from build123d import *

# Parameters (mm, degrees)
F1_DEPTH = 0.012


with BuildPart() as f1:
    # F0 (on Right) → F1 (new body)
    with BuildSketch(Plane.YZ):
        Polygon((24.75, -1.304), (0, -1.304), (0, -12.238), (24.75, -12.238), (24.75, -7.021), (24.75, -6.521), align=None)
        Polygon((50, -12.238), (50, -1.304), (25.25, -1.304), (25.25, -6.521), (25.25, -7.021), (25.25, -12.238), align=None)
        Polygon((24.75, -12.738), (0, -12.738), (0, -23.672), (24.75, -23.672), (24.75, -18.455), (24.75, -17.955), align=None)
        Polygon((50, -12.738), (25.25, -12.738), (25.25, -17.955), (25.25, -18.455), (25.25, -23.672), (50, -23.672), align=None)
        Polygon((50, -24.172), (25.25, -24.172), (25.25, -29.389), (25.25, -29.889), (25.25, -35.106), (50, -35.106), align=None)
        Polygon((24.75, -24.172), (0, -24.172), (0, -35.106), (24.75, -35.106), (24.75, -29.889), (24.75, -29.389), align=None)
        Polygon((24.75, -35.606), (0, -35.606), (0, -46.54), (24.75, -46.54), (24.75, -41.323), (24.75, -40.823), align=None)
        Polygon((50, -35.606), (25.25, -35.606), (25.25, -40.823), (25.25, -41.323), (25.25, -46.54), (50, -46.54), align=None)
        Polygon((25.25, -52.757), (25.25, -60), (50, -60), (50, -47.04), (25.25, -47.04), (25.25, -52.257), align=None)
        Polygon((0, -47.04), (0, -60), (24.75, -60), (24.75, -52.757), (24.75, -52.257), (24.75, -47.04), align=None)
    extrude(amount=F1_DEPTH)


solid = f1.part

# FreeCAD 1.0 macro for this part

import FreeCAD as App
import Part
import Sketcher
from FreeCAD import Vector
Q = App.Units.Quantity


def add_polygon(sketch, points):
    """Adds a closed chain of lines whose ends are joined by coincident constraints."""
    first, n = sketch.GeometryCount, len(points)
    for a, b in zip(points, points[1:] + points[:1]):
        sketch.addGeometry(Part.LineSegment(App.Vector(*a, 0), App.Vector(*b, 0)), False)
    for i in range(n):
        sketch.addConstraint(Sketcher.Constraint("Coincident", first + i, 2, first + (i + 1) % n, 1))

doc = App.newDocument("Part")
body = doc.addObject("PartDesign::Body", "Body")
body.AllowCompound = True

sketch1 = body.newObject("Sketcher::SketchObject", "Sketch")
sketch1.AttachmentSupport = (doc.getObject("YZ_Plane"), [""])
sketch1.MapMode = "FlatFace"
add_polygon(sketch1, [(25, -1), (0, -1), (0, -12), (25, -12)])
add_polygon(sketch1, [(50, -12), (50, -1), (25, -1), (25, -12)])
add_polygon(sketch1, [(25, -13), (0, -13), (0, -24), (25, -24)])
add_polygon(sketch1, [(50, -13), (25, -13), (25, -24), (50, -24)])
add_polygon(sketch1, [(50, -24), (25, -24), (25, -35), (50, -35)])
add_polygon(sketch1, [(25, -24), (0, -24), (0, -35), (25, -35)])
add_polygon(sketch1, [(25, -36), (0, -36), (0, -47), (25, -47)])
add_polygon(sketch1, [(50, -36), (25, -36), (25, -47), (50, -47)])
add_polygon(sketch1, [(25, -60), (50, -60), (50, -47), (25, -47)])
add_polygon(sketch1, [(0, -47), (0, -60), (25, -60), (25, -47)])
sketch1.addConstraint(Sketcher.Constraint("Horizontal", 0))
sketch1.addConstraint(Sketcher.Constraint("Vertical", 1))
sketch1.addConstraint(Sketcher.Constraint("Horizontal", 2))
sketch1.addConstraint(Sketcher.Constraint("Vertical", 3))
sketch1.addConstraint(Sketcher.Constraint("Vertical", 4))
sketch1.addConstraint(Sketcher.Constraint("Horizontal", 5))
sketch1.addConstraint(Sketcher.Constraint("Vertical", 6))
sketch1.addConstraint(Sketcher.Constraint("Horizontal", 7))
sketch1.addConstraint(Sketcher.Constraint("Horizontal", 8))
sketch1.addConstraint(Sketcher.Constraint("Vertical", 9))
sketch1.addConstraint(Sketcher.Constraint("Horizontal", 10))
sketch1.addConstraint(Sketcher.Constraint("Vertical", 11))
sketch1.addConstraint(Sketcher.Constraint("Horizontal", 12))
sketch1.addConstraint(Sketcher.Constraint("Vertical", 13))
sketch1.addConstraint(Sketcher.Constraint("Horizontal", 14))
sketch1.addConstraint(Sketcher.Constraint("Vertical", 15))
sketch1.addConstraint(Sketcher.Constraint("Horizontal", 16))
sketch1.addConstraint(Sketcher.Constraint("Vertical", 17))
sketch1.addConstraint(Sketcher.Constraint("Horizontal", 18))
sketch1.addConstraint(Sketcher.Constraint("Vertical", 19))
sketch1.addConstraint(Sketcher.Constraint("Horizontal", 20))
sketch1.addConstraint(Sketcher.Constraint("Vertical", 21))
sketch1.addConstraint(Sketcher.Constraint("Horizontal", 22))
sketch1.addConstraint(Sketcher.Constraint("Vertical", 23))
sketch1.addConstraint(Sketcher.Constraint("Horizontal", 24))
sketch1.addConstraint(Sketcher.Constraint("Vertical", 25))
sketch1.addConstraint(Sketcher.Constraint("Horizontal", 26))
sketch1.addConstraint(Sketcher.Constraint("Vertical", 27))
sketch1.addConstraint(Sketcher.Constraint("Horizontal", 28))
sketch1.addConstraint(Sketcher.Constraint("Vertical", 29))
sketch1.addConstraint(Sketcher.Constraint("Horizontal", 30))
sketch1.addConstraint(Sketcher.Constraint("Vertical", 31))
sketch1.addConstraint(Sketcher.Constraint("Horizontal", 32))
sketch1.addConstraint(Sketcher.Constraint("Vertical", 33))
sketch1.addConstraint(Sketcher.Constraint("Horizontal", 34))
sketch1.addConstraint(Sketcher.Constraint("Vertical", 35))
sketch1.addConstraint(Sketcher.Constraint("Vertical", 36))
sketch1.addConstraint(Sketcher.Constraint("Horizontal", 37))
sketch1.addConstraint(Sketcher.Constraint("Vertical", 38))
sketch1.addConstraint(Sketcher.Constraint("Horizontal", 39))
sketch1.addConstraint(Sketcher.Constraint("PointOnObject", 0, 2, -2))
sketch1.addConstraint(Sketcher.Constraint("PointOnObject", 8, 2, -2))
sketch1.addConstraint(Sketcher.Constraint("PointOnObject", 20, 2, -2))
sketch1.addConstraint(Sketcher.Constraint("PointOnObject", 24, 2, -2))
sketch1.addConstraint(Sketcher.Constraint("PointOnObject", 36, 2, -2))
sketch1.addConstraint(Sketcher.Constraint("Horizontal", 3, 2, 4, 2))
sketch1.addConstraint(Sketcher.Constraint("Horizontal", 2, 2, 6, 2))
sketch1.addConstraint(Sketcher.Constraint("Horizontal", 11, 2, 12, 2))
sketch1.addConstraint(Sketcher.Constraint("Horizontal", 10, 2, 13, 2))
sketch1.addConstraint(Sketcher.Constraint("Horizontal", 19, 2, 20, 2))
sketch1.addConstraint(Sketcher.Constraint("Horizontal", 18, 2, 21, 2))
sketch1.addConstraint(Sketcher.Constraint("Horizontal", 27, 2, 28, 2))
sketch1.addConstraint(Sketcher.Constraint("Horizontal", 26, 2, 29, 2))
sketch1.addConstraint(Sketcher.Constraint("Horizontal", 35, 2, 36, 2))
sketch1.addConstraint(Sketcher.Constraint("Horizontal", 34, 2, 38, 2))
sketch1.addConstraint(Sketcher.Constraint("Vertical", 3, 2, 10, 2))
sketch1.addConstraint(Sketcher.Constraint("Vertical", 6, 2, 12, 2))
sketch1.addConstraint(Sketcher.Constraint("Vertical", 7, 2, 14, 2))
sketch1.addConstraint(Sketcher.Constraint("Vertical", 13, 2, 16, 2))
sketch1.addConstraint(Sketcher.Constraint("Vertical", 15, 2, 18, 2))
sketch1.addConstraint(Sketcher.Constraint("Vertical", 11, 2, 22, 2))
sketch1.addConstraint(Sketcher.Constraint("Vertical", 23, 2, 26, 2))
sketch1.addConstraint(Sketcher.Constraint("Vertical", 17, 2, 28, 2))
sketch1.addConstraint(Sketcher.Constraint("Vertical", 19, 2, 30, 2))
sketch1.addConstraint(Sketcher.Constraint("Vertical", 31, 2, 32, 2))
sketch1.addConstraint(Sketcher.Constraint("Vertical", 29, 2, 34, 2))
sketch1.addConstraint(Sketcher.Constraint("Vertical", 27, 2, 37, 2))
sketch1.addConstraint(Sketcher.Constraint("Equal", 2, 5))
sketch1.addConstraint(Sketcher.Constraint("Equal", 6, 9))
sketch1.addConstraint(Sketcher.Constraint("Equal", 15, 17))
sketch1.addConstraint(Sketcher.Constraint("Equal", 23, 25))
sketch1.addConstraint(Sketcher.Constraint("DistanceX", -1, 1, 4, 2, Q("50 mm")))
sketch1.addConstraint(Sketcher.Constraint("DistanceY", 32, 2, -1, 1, Q("60 mm")))
sketch1.addConstraint(Sketcher.Constraint("DistanceX", 0, 2, 0, 1, Q("24.75 mm")))
sketch1.addConstraint(Sketcher.Constraint("DistanceY", 33, 1, 33, 2, Q("12.96 mm")))
sketch1.addConstraint(Sketcher.Constraint("DistanceY", 8, 2, 1, 2, Q("0.5 mm")))
sketch1.addConstraint(Sketcher.Constraint("DistanceY", 16, 2, 13, 2, Q("0.5 mm")))
sketch1.addConstraint(Sketcher.Constraint("DistanceY", 24, 2, 21, 2, Q("0.5 mm")))
sketch1.addConstraint(Sketcher.Constraint("DistanceY", 33, 2, 30, 2, Q("0.5 mm")))
sketch1.addConstraint(Sketcher.Constraint("DistanceY", 1, 2, 1, 1, Q("10.934 mm")))
pad1 = body.newObject("PartDesign::Pad", "Pad")
pad1.Profile = sketch1
pad1.Length = 0.012

doc.recompute()
